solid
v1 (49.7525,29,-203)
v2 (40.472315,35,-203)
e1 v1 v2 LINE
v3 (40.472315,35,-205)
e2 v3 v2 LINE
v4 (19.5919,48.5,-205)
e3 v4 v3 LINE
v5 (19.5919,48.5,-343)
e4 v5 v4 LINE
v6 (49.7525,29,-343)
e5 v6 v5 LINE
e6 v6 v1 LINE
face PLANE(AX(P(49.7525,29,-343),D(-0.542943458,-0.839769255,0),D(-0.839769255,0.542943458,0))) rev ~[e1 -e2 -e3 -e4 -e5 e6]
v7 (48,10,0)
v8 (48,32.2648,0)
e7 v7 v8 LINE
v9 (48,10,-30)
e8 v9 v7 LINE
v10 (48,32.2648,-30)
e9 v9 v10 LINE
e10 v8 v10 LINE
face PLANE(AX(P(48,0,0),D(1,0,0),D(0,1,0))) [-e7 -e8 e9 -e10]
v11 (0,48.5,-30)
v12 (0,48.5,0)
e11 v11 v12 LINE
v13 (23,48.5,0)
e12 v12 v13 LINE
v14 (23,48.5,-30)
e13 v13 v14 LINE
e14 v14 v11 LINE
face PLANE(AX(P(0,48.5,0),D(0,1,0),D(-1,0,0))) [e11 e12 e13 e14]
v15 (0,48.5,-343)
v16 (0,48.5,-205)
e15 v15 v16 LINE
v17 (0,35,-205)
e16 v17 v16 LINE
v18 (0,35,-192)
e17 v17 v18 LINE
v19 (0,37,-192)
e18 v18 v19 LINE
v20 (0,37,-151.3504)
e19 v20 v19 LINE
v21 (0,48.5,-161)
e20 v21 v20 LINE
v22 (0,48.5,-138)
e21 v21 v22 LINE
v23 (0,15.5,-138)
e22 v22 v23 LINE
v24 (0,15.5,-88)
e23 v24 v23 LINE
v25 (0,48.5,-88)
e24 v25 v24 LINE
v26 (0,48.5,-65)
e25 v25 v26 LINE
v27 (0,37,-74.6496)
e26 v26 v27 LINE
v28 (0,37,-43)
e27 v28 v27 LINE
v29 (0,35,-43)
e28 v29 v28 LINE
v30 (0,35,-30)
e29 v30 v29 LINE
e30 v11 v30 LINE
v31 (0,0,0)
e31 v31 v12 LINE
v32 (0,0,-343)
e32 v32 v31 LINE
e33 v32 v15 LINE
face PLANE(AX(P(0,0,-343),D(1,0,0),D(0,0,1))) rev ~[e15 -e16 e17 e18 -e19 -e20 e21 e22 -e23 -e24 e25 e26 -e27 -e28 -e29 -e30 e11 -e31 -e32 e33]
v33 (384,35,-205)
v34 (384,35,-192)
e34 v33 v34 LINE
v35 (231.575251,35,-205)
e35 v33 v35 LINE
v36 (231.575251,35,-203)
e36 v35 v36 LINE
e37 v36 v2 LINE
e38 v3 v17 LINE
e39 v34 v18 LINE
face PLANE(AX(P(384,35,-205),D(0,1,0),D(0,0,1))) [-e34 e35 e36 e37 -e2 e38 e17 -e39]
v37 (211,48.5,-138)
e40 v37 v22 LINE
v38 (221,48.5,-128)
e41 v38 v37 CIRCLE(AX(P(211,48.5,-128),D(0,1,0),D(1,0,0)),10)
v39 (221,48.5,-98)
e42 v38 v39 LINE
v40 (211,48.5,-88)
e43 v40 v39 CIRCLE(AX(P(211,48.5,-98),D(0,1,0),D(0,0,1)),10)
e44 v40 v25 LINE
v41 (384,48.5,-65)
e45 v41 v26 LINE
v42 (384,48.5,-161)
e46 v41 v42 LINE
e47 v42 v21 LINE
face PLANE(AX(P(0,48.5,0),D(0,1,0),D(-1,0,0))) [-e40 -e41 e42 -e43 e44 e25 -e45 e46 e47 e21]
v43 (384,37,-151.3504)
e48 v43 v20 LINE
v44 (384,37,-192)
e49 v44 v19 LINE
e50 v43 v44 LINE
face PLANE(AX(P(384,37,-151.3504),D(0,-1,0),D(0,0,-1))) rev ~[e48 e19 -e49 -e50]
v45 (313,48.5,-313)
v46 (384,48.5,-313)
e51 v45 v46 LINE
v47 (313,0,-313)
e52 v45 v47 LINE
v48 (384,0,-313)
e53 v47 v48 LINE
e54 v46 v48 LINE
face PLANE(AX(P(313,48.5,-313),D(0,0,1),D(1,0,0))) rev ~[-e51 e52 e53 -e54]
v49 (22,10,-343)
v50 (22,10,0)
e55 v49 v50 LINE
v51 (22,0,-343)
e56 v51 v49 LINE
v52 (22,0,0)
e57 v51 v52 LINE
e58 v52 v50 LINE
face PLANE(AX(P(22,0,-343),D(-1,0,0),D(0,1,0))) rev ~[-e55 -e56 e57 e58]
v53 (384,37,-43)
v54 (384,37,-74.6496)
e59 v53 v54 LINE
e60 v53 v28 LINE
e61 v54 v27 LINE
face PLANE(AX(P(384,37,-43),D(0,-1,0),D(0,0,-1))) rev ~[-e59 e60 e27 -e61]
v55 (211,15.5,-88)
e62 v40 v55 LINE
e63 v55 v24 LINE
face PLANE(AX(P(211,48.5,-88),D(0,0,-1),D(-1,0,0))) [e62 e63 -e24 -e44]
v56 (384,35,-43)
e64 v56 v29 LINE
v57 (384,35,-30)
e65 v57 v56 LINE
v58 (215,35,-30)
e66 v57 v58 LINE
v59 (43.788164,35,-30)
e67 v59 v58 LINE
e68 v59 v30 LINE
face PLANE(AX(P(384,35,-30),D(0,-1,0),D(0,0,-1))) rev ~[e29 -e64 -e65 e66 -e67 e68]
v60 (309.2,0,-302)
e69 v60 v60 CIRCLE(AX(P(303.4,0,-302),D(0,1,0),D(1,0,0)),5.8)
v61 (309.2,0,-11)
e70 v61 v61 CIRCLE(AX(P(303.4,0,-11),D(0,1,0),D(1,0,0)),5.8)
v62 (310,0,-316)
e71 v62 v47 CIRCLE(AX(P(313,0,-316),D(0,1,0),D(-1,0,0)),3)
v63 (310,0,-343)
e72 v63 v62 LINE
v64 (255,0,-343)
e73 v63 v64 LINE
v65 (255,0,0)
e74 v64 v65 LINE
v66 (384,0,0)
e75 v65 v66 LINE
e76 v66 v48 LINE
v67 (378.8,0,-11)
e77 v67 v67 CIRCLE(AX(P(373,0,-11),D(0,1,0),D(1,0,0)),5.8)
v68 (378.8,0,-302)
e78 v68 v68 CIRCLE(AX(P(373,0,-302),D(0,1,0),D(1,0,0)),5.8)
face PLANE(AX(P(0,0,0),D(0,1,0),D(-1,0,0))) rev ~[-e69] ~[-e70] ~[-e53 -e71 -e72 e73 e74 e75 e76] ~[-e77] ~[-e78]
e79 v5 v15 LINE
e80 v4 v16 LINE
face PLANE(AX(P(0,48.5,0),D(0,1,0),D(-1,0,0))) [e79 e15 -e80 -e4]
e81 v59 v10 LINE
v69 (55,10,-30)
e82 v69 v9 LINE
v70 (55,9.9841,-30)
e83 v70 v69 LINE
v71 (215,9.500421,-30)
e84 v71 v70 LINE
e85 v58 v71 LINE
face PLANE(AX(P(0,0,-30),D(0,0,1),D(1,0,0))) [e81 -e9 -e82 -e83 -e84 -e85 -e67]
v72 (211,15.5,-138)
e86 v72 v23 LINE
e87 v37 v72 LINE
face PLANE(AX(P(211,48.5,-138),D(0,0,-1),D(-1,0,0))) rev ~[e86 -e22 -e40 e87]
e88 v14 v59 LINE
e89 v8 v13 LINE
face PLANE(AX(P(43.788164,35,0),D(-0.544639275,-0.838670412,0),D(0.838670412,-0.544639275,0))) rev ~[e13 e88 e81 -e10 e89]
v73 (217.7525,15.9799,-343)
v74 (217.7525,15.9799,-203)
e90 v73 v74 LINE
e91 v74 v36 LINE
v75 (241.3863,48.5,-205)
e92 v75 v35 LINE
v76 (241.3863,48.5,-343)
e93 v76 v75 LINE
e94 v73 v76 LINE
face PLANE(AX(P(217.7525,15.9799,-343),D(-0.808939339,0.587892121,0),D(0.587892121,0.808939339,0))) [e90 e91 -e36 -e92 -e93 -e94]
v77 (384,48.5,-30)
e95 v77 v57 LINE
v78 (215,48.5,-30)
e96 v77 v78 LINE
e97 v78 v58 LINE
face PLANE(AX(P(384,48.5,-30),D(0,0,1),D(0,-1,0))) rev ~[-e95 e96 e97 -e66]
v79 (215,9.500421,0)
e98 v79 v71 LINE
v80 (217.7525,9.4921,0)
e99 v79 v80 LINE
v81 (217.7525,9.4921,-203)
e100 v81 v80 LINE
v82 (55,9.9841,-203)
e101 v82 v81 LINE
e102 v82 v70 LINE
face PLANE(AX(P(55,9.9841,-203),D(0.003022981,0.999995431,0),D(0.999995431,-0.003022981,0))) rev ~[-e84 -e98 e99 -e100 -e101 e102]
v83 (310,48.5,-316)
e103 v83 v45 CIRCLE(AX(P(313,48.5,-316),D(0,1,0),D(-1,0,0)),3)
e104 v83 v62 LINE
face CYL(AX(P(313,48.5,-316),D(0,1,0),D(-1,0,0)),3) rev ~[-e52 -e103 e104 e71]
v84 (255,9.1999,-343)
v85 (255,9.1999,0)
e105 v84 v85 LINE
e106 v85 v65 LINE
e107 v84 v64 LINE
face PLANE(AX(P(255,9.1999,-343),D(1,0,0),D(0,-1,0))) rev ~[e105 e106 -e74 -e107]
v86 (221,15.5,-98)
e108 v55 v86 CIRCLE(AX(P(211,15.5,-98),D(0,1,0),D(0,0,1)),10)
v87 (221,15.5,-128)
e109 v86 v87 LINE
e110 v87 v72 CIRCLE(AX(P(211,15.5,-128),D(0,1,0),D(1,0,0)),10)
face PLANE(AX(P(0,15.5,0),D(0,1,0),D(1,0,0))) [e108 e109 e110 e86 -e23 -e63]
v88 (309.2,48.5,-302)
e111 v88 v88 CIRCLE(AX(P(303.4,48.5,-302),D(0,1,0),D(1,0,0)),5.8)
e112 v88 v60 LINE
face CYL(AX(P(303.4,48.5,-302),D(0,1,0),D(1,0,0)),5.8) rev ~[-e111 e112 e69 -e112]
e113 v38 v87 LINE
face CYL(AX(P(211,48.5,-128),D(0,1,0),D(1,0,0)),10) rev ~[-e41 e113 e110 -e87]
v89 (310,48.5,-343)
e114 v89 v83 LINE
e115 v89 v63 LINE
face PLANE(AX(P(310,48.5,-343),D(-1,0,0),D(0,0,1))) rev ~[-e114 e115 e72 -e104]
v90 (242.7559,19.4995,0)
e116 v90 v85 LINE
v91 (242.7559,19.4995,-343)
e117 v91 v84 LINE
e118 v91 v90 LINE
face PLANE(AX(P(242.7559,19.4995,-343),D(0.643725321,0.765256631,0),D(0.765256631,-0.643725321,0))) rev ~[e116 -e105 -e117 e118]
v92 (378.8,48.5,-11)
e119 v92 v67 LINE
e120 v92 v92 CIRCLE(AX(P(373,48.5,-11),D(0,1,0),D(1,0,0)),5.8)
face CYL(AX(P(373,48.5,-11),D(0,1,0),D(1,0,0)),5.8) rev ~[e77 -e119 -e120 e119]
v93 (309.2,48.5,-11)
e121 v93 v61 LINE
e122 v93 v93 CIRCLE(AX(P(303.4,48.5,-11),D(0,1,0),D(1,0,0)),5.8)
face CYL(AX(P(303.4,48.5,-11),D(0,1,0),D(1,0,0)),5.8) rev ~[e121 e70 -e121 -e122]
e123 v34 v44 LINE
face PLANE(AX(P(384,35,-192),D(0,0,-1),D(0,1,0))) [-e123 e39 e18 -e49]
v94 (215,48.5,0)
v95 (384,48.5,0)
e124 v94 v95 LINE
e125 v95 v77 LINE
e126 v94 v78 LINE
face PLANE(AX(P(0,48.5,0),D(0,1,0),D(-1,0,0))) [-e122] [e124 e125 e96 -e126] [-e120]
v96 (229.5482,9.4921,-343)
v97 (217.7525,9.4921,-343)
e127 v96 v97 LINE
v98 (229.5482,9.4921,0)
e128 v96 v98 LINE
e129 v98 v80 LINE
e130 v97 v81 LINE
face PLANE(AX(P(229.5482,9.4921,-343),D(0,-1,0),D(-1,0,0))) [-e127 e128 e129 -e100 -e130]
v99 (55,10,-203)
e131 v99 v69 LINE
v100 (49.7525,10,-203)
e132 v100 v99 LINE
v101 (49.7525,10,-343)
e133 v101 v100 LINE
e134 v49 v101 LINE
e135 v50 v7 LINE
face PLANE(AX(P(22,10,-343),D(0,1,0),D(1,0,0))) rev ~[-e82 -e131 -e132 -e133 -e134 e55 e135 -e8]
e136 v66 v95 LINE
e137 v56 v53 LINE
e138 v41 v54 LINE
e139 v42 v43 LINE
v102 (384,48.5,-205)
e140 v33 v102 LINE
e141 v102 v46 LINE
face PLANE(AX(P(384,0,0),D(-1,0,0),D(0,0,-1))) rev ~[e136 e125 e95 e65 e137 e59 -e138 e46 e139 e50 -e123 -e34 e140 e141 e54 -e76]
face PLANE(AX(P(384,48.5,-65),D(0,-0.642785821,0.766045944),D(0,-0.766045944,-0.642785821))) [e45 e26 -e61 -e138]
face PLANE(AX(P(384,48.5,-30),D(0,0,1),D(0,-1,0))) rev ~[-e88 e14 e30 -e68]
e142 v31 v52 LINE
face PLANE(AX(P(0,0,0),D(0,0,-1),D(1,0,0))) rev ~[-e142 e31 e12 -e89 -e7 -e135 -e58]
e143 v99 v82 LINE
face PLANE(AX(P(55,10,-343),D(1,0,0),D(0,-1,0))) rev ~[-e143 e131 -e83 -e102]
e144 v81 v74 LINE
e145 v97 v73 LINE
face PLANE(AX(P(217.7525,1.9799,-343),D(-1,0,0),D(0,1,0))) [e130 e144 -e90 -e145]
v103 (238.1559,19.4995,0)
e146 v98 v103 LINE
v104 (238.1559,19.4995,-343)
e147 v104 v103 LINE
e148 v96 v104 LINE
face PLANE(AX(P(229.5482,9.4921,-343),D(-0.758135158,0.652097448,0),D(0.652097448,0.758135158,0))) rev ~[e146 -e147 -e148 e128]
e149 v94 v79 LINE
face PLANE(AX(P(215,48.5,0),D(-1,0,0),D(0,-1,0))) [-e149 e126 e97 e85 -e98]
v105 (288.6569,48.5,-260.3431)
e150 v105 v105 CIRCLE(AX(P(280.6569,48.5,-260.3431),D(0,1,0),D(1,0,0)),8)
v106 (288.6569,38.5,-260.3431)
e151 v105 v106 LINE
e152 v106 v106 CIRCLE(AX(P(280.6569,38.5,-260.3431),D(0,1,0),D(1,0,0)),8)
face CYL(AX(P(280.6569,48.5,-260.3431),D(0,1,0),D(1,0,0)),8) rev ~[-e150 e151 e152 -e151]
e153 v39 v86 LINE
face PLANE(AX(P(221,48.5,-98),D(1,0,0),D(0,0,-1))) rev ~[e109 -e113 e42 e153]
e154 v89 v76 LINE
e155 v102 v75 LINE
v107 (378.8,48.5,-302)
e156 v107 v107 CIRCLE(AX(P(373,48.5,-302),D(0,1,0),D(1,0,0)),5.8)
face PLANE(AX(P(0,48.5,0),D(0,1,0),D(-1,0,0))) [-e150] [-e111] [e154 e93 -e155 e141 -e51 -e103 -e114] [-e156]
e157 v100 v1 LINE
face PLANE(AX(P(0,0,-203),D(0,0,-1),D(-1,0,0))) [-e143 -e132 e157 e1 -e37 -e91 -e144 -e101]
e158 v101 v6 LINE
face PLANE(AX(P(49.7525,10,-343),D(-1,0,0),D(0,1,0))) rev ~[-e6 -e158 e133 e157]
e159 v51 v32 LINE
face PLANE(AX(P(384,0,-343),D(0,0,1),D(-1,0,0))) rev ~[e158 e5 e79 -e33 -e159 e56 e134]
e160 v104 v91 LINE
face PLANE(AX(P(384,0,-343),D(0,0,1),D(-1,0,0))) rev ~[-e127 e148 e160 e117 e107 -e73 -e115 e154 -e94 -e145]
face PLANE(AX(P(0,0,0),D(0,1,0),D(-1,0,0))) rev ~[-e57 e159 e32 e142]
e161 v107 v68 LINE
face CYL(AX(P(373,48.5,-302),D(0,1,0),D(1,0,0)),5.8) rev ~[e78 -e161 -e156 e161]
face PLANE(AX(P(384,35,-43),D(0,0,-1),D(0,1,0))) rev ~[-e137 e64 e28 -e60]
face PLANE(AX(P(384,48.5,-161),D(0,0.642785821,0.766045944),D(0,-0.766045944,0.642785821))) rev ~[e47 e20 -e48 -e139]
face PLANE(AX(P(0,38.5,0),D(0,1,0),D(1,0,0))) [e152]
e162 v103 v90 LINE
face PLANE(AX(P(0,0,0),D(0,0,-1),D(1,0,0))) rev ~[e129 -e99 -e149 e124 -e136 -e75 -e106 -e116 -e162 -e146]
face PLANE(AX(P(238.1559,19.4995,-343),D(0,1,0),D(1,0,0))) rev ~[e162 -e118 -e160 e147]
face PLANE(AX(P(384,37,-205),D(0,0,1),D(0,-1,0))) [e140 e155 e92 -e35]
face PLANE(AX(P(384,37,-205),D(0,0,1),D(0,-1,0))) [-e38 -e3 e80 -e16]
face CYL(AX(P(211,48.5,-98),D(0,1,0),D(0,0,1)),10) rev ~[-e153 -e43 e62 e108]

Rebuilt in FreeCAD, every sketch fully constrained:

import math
import FreeCAD as App
import Part
import Sketcher

V = App.Vector
Q = App.Units.Quantity

doc = App.newDocument("Part")
body = doc.addObject("PartDesign::Body", "Body")

sketch1 = body.newObject("Sketcher::SketchObject", "Sketch")
sketch1.AttachmentSupport = (doc.getObject("XZ_Plane"), [""])
sketch1.MapMode = "FlatFace"
sketch1.addGeometry([
    Part.LineSegment(V(0, -343, 0), V(0, 0, 0)),
    Part.LineSegment(V(0, 0, 0), V(384, 0, 0)),
    Part.LineSegment(V(384, 0, 0), V(384, -343, 0)),
    Part.LineSegment(V(384, -343, 0), V(0, -343, 0)),
], False)
sketch1.addConstraint([
    Sketcher.Constraint("Coincident", 0, 2, 1, 1),
    Sketcher.Constraint("Coincident", 1, 2, 2, 1),
    Sketcher.Constraint("Coincident", 2, 2, 3, 1),
    Sketcher.Constraint("Coincident", 3, 2, 0, 1),
    Sketcher.Constraint("Vertical", 0),
    Sketcher.Constraint("Horizontal", 1),
    Sketcher.Constraint("Vertical", 2),
    Sketcher.Constraint("Horizontal", 3),
    Sketcher.Constraint("Coincident", 0, 2, -1, 1),
    Sketcher.Constraint("DistanceX", 1, 1, 1, 2, 384.0),
    Sketcher.Constraint("DistanceY", 0, 1, 0, 2, 343.0),
])
pad1 = body.newObject("PartDesign::Pad", "Pad")
pad1.Profile = sketch1
pad1.Length = 48.5
pad1.Reversed = True

sketch2 = body.newObject("Sketcher::SketchObject", "Sketch001")
sketch2.AttachmentSupport = (doc.getObject("YZ_Plane"), [""])
sketch2.MapMode = "FlatFace"
sketch2.AttachmentOffset = App.Placement(V(0, 0, 384), App.Rotation())
sketch2.addGeometry([
    Part.LineSegment(V(48.5, -65, 0), V(48.5, -30, 0)),
    Part.LineSegment(V(48.5, -30, 0), V(35, -30, 0)),
    Part.LineSegment(V(35, -30, 0), V(35, -43, 0)),
    Part.LineSegment(V(35, -43, 0), V(37, -43, 0)),
    Part.LineSegment(V(37, -43, 0), V(37, -74.6, 0)),
    Part.LineSegment(V(37, -74.6, 0), V(48.5, -65, 0)),
], False)
sketch2.addConstraint([
    Sketcher.Constraint("Coincident", 0, 2, 1, 1),
    Sketcher.Constraint("Coincident", 1, 2, 2, 1),
    Sketcher.Constraint("Coincident", 2, 2, 3, 1),
    Sketcher.Constraint("Coincident", 3, 2, 4, 1),
    Sketcher.Constraint("Coincident", 4, 2, 5, 1),
    Sketcher.Constraint("Coincident", 5, 2, 0, 1),
    Sketcher.Constraint("Vertical", 0),
    Sketcher.Constraint("Horizontal", 1),
    Sketcher.Constraint("Vertical", 2),
    Sketcher.Constraint("Horizontal", 3),
    Sketcher.Constraint("Vertical", 4),
    Sketcher.Constraint("DistanceX", 3, 1, 3, 2, 2.0),
    Sketcher.Constraint("DistanceY", 0, 1, 0, 2, 35.0),
    Sketcher.Constraint("DistanceY", 2, 2, 2, 1, 13.0),
    Sketcher.Constraint("DistanceX", -1, 1, 1, 2, 35.0),
    Sketcher.Constraint("Angle", 5, Q("39.9999 deg")),
    Sketcher.Constraint("DistanceX", 1, 2, 1, 1, 13.5),
    Sketcher.Constraint("DistanceY", 0, 2, -1, 1, 30.0),
])
pocket1 = body.newObject("PartDesign::Pocket", "Pocket")
pocket1.Profile = sketch2
pocket1.Type = "ThroughAll"

sketch3 = body.newObject("Sketcher::SketchObject", "Sketch002")
sketch3.AttachmentSupport = (doc.getObject("YZ_Plane"), [""])
sketch3.MapMode = "FlatFace"
sketch3.AttachmentOffset = App.Placement(V(0, 0, 384), App.Rotation())
sketch3.addGeometry([
    Part.LineSegment(V(48.5, -205, 0), V(48.5, -161, 0)),
    Part.LineSegment(V(48.5, -161, 0), V(37, -151.4, 0)),
    Part.LineSegment(V(37, -151.4, 0), V(37, -192, 0)),
    Part.LineSegment(V(37, -192, 0), V(35, -192, 0)),
    Part.LineSegment(V(35, -192, 0), V(35, -205, 0)),
    Part.LineSegment(V(35, -205, 0), V(48.5, -205, 0)),
], False)
sketch3.addConstraint([
    Sketcher.Constraint("Coincident", 0, 2, 1, 1),
    Sketcher.Constraint("Coincident", 1, 2, 2, 1),
    Sketcher.Constraint("Coincident", 2, 2, 3, 1),
    Sketcher.Constraint("Coincident", 3, 2, 4, 1),
    Sketcher.Constraint("Coincident", 4, 2, 5, 1),
    Sketcher.Constraint("Coincident", 5, 2, 0, 1),
    Sketcher.Constraint("Vertical", 0),
    Sketcher.Constraint("Vertical", 2),
    Sketcher.Constraint("Horizontal", 3),
    Sketcher.Constraint("Vertical", 4),
    Sketcher.Constraint("Horizontal", 5),
    Sketcher.Constraint("DistanceY", 0, 1, 0, 2, 44.0),
    Sketcher.Constraint("DistanceX", 3, 2, 3, 1, 2.0),
    Sketcher.Constraint("DistanceY", 4, 2, 4, 1, 13.0),
    Sketcher.Constraint("Angle", 1, Q("140.0001 deg")),
    Sketcher.Constraint("DistanceX", 5, 1, 5, 2, 13.5),
    Sketcher.Constraint("DistanceY", 0, 2, -1, 1, 161.0),
    Sketcher.Constraint("DistanceX", -1, 1, 1, 2, 37.0),
])
pocket2 = body.newObject("PartDesign::Pocket", "Pocket001")
pocket2.Profile = sketch3
pocket2.Type = "ThroughAll"

sketch4 = body.newObject("Sketcher::SketchObject", "Sketch003")
sketch4.AttachmentSupport = (doc.getObject("XZ_Plane"), [""])
sketch4.MapMode = "FlatFace"
sketch4.AttachmentOffset = App.Placement(V(0, 0, -48.5), App.Rotation())
sketch4.addGeometry([
    Part.LineSegment(V(384, -343, 0), V(310, -343, 0)),
    Part.LineSegment(V(310, -343, 0), V(310, -316, 0)),
    Part.ArcOfCircle(Part.Circle(V(313, -316, 0), V(0, 0, 1), 3), math.radians(90), math.radians(180)),
    Part.LineSegment(V(313, -313, 0), V(384, -313, 0)),
    Part.LineSegment(V(384, -313, 0), V(384, -343, 0)),
], False)
sketch4.addConstraint([
    Sketcher.Constraint("Coincident", 0, 2, 1, 1),
    Sketcher.Constraint("Tangent", 1, 2, 2, 2),
    Sketcher.Constraint("Tangent", 2, 1, 3, 1),
    Sketcher.Constraint("Coincident", 3, 2, 4, 1),
    Sketcher.Constraint("Coincident", 4, 2, 0, 1),
    Sketcher.Constraint("Horizontal", 0),
    Sketcher.Constraint("Vertical", 1),
    Sketcher.Constraint("Horizontal", 3),
    Sketcher.Constraint("Vertical", 4),
    Sketcher.Constraint("Radius", 2, 3.0),
    Sketcher.Constraint("DistanceY", 4, 2, 4, 1, 30.0),
    Sketcher.Constraint("DistanceX", 0, 2, 0, 1, 74.0),
    Sketcher.Constraint("DistanceX", -1, 1, 2, 3, 313.0),
    Sketcher.Constraint("DistanceY", 2, 3, -1, 1, 316.0),
])
pocket3 = body.newObject("PartDesign::Pocket", "Pocket002")
pocket3.Profile = sketch4
pocket3.Type = "ThroughAll"
pocket3.Reversed = True

sketch5 = body.newObject("Sketcher::SketchObject", "Sketch004")
sketch5.AttachmentSupport = (doc.getObject("XZ_Plane"), [""])
sketch5.MapMode = "FlatFace"
sketch5.AttachmentOffset = App.Placement(V(0, 0, -48.5), App.Rotation())
sketch5.addGeometry([
    Part.LineSegment(V(221, -98, 0), V(221, -128, 0)),
    Part.ArcOfCircle(Part.Circle(V(211, -128, 0), V(0, 0, 1), 10), math.radians(-90), math.radians(0)),
    Part.LineSegment(V(211, -138, 0), V(0, -138, 0)),
    Part.LineSegment(V(0, -138, 0), V(0, -88, 0)),
    Part.LineSegment(V(0, -88, 0), V(211, -88, 0)),
    Part.ArcOfCircle(Part.Circle(V(211, -98, 0), V(0, 0, 1), 10), math.radians(0), math.radians(90)),
], False)
sketch5.addConstraint([
    Sketcher.Constraint("Tangent", 0, 2, 1, 2),
    Sketcher.Constraint("Tangent", 1, 1, 2, 1),
    Sketcher.Constraint("Coincident", 2, 2, 3, 1),
    Sketcher.Constraint("Coincident", 3, 2, 4, 1),
    Sketcher.Constraint("Tangent", 4, 2, 5, 2),
    Sketcher.Constraint("Tangent", 5, 1, 0, 1),
    Sketcher.Constraint("Vertical", 0),
    Sketcher.Constraint("Horizontal", 2),
    Sketcher.Constraint("Vertical", 3),
    Sketcher.Constraint("Horizontal", 4),
    Sketcher.Constraint("Equal", 1, 5),
    Sketcher.Constraint("PointOnObject", 2, 2, -2),
    Sketcher.Constraint("Radius", 1, 10.0),
    Sketcher.Constraint("DistanceX", 2, 2, 2, 1, 211.0),
    Sketcher.Constraint("DistanceY", 0, 2, 0, 1, 30.0),
    Sketcher.Constraint("DistanceY", 1, 3, -1, 1, 128.0),
])
pocket4 = body.newObject("PartDesign::Pocket", "Pocket003")
pocket4.Profile = sketch5
pocket4.Length = 33
pocket4.Reversed = True

sketch6 = body.newObject("Sketcher::SketchObject", "Sketch005")
sketch6.AttachmentSupport = (doc.getObject("XZ_Plane"), [""])
sketch6.MapMode = "FlatFace"
sketch6.AttachmentOffset = App.Placement(V(0, 0, -48.5), App.Rotation())
sketch6.addGeometry([
    Part.Circle(V(373, -302, 0), V(0, 0, 1), 6),
    Part.Circle(V(303, -302, 0), V(0, 0, 1), 6),
    Part.Circle(V(373, -11, 0), V(0, 0, 1), 6),
    Part.Circle(V(303, -11, 0), V(0, 0, 1), 6),
], False)
sketch6.addConstraint([
    Sketcher.Constraint("Equal", 0, 1),
    Sketcher.Constraint("Equal", 1, 2),
    Sketcher.Constraint("Equal", 2, 3),
    Sketcher.Constraint("Horizontal", 0, 3, 1, 3),
    Sketcher.Constraint("Horizontal", 2, 3, 3, 3),
    Sketcher.Constraint("Vertical", 0, 3, 2, 3),
    Sketcher.Constraint("Vertical", 1, 3, 3, 3),
    Sketcher.Constraint("Diameter", 0, 11.6),
    Sketcher.Constraint("DistanceX", -1, 1, 0, 3, 373.0),
    Sketcher.Constraint("DistanceY", 0, 3, -1, 1, 302.0),
    Sketcher.Constraint("DistanceY", 2, 3, -1, 1, 11.0),
    Sketcher.Constraint("DistanceX", -1, 1, 1, 3, 303.4),
])
pocket5 = body.newObject("PartDesign::Pocket", "Pocket004")
pocket5.Profile = sketch6
pocket5.Type = "ThroughAll"
pocket5.Reversed = True

sketch7 = body.newObject("Sketcher::SketchObject", "Sketch006")
sketch7.AttachmentSupport = (doc.getObject("XY_Plane"), [""])
sketch7.MapMode = "FlatFace"
sketch7.addGeometry([
    Part.LineSegment(V(48, 32, 0), V(48, 48, 0)),
    Part.LineSegment(V(48, 48, 0), V(23, 48, 0)),
    Part.LineSegment(V(23, 48, 0), V(48, 32, 0)),
], False)
sketch7.addConstraint([
    Sketcher.Constraint("Coincident", 0, 2, 1, 1),
    Sketcher.Constraint("Coincident", 1, 2, 2, 1),
    Sketcher.Constraint("Coincident", 2, 2, 0, 1),
    Sketcher.Constraint("Vertical", 0),
    Sketcher.Constraint("Horizontal", 1),
    Sketcher.Constraint("DistanceX", 1, 2, 1, 1, 25.0),
    Sketcher.Constraint("Angle", 2, Q("-33 deg")),
    Sketcher.Constraint("DistanceX", -1, 1, 0, 2, 48.0),
    Sketcher.Constraint("DistanceY", -1, 1, 0, 2, 48.5),
])
pocket6 = body.newObject("PartDesign::Pocket", "Pocket005")
pocket6.Profile = sketch7
pocket6.Length = 30

sketch8 = body.newObject("Sketcher::SketchObject", "Sketch007")
sketch8.AttachmentSupport = (doc.getObject("XY_Plane"), [""])
sketch8.MapMode = "FlatFace"
sketch8.addGeometry([
    Part.LineSegment(V(215, 48, 0), V(48, 48, 0)),
    Part.LineSegment(V(48, 48, 0), V(48, 0, 0)),
    Part.LineSegment(V(48, 0, 0), V(215, 0, 0)),
    Part.LineSegment(V(215, 0, 0), V(215, 48, 0)),
], False)
sketch8.addConstraint([
    Sketcher.Constraint("Coincident", 0, 2, 1, 1),
    Sketcher.Constraint("Coincident", 1, 2, 2, 1),
    Sketcher.Constraint("Coincident", 2, 2, 3, 1),
    Sketcher.Constraint("Coincident", 3, 2, 0, 1),
    Sketcher.Constraint("Horizontal", 0),
    Sketcher.Constraint("Vertical", 1),
    Sketcher.Constraint("Horizontal", 2),
    Sketcher.Constraint("Vertical", 3),
    Sketcher.Constraint("PointOnObject", 1, 2, -1),
    Sketcher.Constraint("DistanceX", 0, 2, 0, 1, 167.0),
    Sketcher.Constraint("DistanceY", 1, 2, 1, 1, 48.5),
    Sketcher.Constraint("DistanceX", -1, 1, 0, 2, 48.0),
])
pocket7 = body.newObject("PartDesign::Pocket", "Pocket006")
pocket7.Profile = sketch8
pocket7.Length = 30

sketch9 = body.newObject("Sketcher::SketchObject", "Sketch008")
sketch9.AttachmentSupport = (doc.getObject("XZ_Plane"), [""])
sketch9.MapMode = "FlatFace"
sketch9.AttachmentOffset = App.Placement(V(0, 0, -48.5), App.Rotation())
sketch9.addGeometry(Part.Circle(V(281, -260, 0), V(0, 0, 1), 8), False)
sketch9.addConstraint([
    Sketcher.Constraint("Diameter", 0, 16.0),
    Sketcher.Constraint("DistanceX", -1, 1, 0, 3, 280.657),
    Sketcher.Constraint("DistanceY", 0, 3, -1, 1, 260.343),
])
pocket8 = body.newObject("PartDesign::Pocket", "Pocket007")
pocket8.Profile = sketch9
pocket8.Length = 10
pocket8.Reversed = True

sketch10 = body.newObject("Sketcher::SketchObject", "Sketch009")
sketch10.AttachmentSupport = (doc.getObject("XY_Plane"), [""])
sketch10.MapMode = "FlatFace"
sketch10.AttachmentOffset = App.Placement(V(0, 0, -343), App.Rotation())
sketch10.addGeometry([
    Part.LineSegment(V(55, 10, 0), V(55, 0, 0)),
    Part.LineSegment(V(55, 0, 0), V(22, 0, 0)),
    Part.LineSegment(V(22, 0, 0), V(22, 10, 0)),
    Part.LineSegment(V(22, 10, 0), V(55, 10, 0)),
    Part.LineSegment(V(243.7, 11.3, 0), V(255, 0, 0)),
    Part.LineSegment(V(255, 0, 0), V(217.8, 0, 0)),
    Part.LineSegment(V(217.8, 0, 0), V(217.8, 2, 0)),
    Part.LineSegment(V(217.8, 2, 0), V(229.8, 2, 0)),
    Part.LineSegment(V(229.8, 2, 0), V(239.1, 11.3, 0)),
    Part.LineSegment(V(239.1, 11.3, 0), V(243.7, 11.3, 0)),
], False)
sketch10.addConstraint([
    Sketcher.Constraint("Coincident", 0, 2, 1, 1),
    Sketcher.Constraint("Coincident", 1, 2, 2, 1),
    Sketcher.Constraint("Coincident", 2, 2, 3, 1),
    Sketcher.Constraint("Coincident", 3, 2, 0, 1),
    Sketcher.Constraint("Coincident", 4, 2, 5, 1),
    Sketcher.Constraint("Coincident", 5, 2, 6, 1),
    Sketcher.Constraint("Coincident", 6, 2, 7, 1),
    Sketcher.Constraint("Coincident", 7, 2, 8, 1),
    Sketcher.Constraint("Coincident", 8, 2, 9, 1),
    Sketcher.Constraint("Coincident", 9, 2, 4, 1),
    Sketcher.Constraint("Vertical", 0),
    Sketcher.Constraint("Horizontal", 1),
    Sketcher.Constraint("Vertical", 2),
    Sketcher.Constraint("Horizontal", 3),
    Sketcher.Constraint("Horizontal", 5),
    Sketcher.Constraint("Vertical", 6),
    Sketcher.Constraint("Horizontal", 7),
    Sketcher.Constraint("Horizontal", 9),
    Sketcher.Constraint("PointOnObject", 0, 2, -1),
    Sketcher.Constraint("PointOnObject", 4, 2, -1),
    Sketcher.Constraint("Perpendicular", 4, 8),
    Sketcher.Constraint("DistanceX", 7, 1, 7, 2, 12.0),
    Sketcher.Constraint("DistanceY", 0, 2, 0, 1, 10.0),
    Sketcher.Constraint("Angle", 4, Q("-45 deg")),
    Sketcher.Constraint("Distance", 4, 16.0),
    Sketcher.Constraint("DistanceX", 9, 1, 9, 2, 4.6),
    Sketcher.Constraint("DistanceX", -1, 1, 1, 2, 22.0),
    Sketcher.Constraint("Distance", 8, 13.2),
    Sketcher.Constraint("DistanceX", 1, 2, 1, 1, 33.0),
    Sketcher.Constraint("DistanceX", -1, 1, 4, 2, 255.0),
])
pocket9 = body.newObject("PartDesign::Pocket", "Pocket008")
pocket9.Profile = sketch10
pocket9.Type = "ThroughAll"
pocket9.Reversed = True

sketch11 = body.newObject("Sketcher::SketchObject", "Sketch010")
sketch11.AttachmentSupport = (doc.getObject("XY_Plane"), [""])
sketch11.MapMode = "FlatFace"
sketch11.AttachmentOffset = App.Placement(V(0, 0, -343), App.Rotation())
sketch11.addGeometry([
    Part.LineSegment(V(218, 16, 0), V(218, 0, 0)),
    Part.LineSegment(V(218, 0, 0), V(55, 0, 0)),
    Part.LineSegment(V(55, 0, 0), V(55, 10, 0)),
    Part.LineSegment(V(55, 10, 0), V(50, 10, 0)),
    Part.LineSegment(V(50, 10, 0), V(50, 29, 0)),
    Part.LineSegment(V(50, 29, 0), V(20, 48, 0)),
    Part.LineSegment(V(20, 48, 0), V(241, 48, 0)),
    Part.LineSegment(V(241, 48, 0), V(218, 16, 0)),
], False)
sketch11.addConstraint([
    Sketcher.Constraint("Coincident", 0, 2, 1, 1),
    Sketcher.Constraint("Coincident", 1, 2, 2, 1),
    Sketcher.Constraint("Coincident", 2, 2, 3, 1),
    Sketcher.Constraint("Coincident", 3, 2, 4, 1),
    Sketcher.Constraint("Coincident", 4, 2, 5, 1),
    Sketcher.Constraint("Coincident", 5, 2, 6, 1),
    Sketcher.Constraint("Coincident", 6, 2, 7, 1),
    Sketcher.Constraint("Coincident", 7, 2, 0, 1),
    Sketcher.Constraint("Vertical", 0),
    Sketcher.Constraint("Horizontal", 1),
    Sketcher.Constraint("Vertical", 2),
    Sketcher.Constraint("Horizontal", 3),
    Sketcher.Constraint("Vertical", 4),
    Sketcher.Constraint("Horizontal", 6),
    Sketcher.Constraint("PointOnObject", 0, 2, -1),
    Sketcher.Constraint("DistanceY", 4, 1, 4, 2, 19.0),
    Sketcher.Constraint("DistanceY", 2, 1, 2, 2, 10.0),
    Sketcher.Constraint("DistanceX", -1, 1, 1, 2, 55.0),
    Sketcher.Constraint("DistanceX", 3, 2, 0, 2, 168.0),
    Sketcher.Constraint("DistanceY", 0, 2, 0, 1, 15.98),
    Sketcher.Constraint("DistanceY", -1, 1, 5, 2, 48.5),
    Sketcher.Constraint("Distance", 7, 40.201),
    Sketcher.Constraint("DistanceX", 1, 2, 1, 1, 162.7525),
    Sketcher.Constraint("DistanceX", 6, 1, 6, 2, 221.7944),
])
pocket10 = body.newObject("PartDesign::Pocket", "Pocket009")
pocket10.Profile = sketch11
pocket10.Length = 140
pocket10.Reversed = True

sketch12 = body.newObject("Sketcher::SketchObject", "Sketch011")
sketch12.AttachmentSupport = (doc.getObject("XY_Plane"), [""])
sketch12.MapMode = "FlatFace"
sketch12.AttachmentOffset = App.Placement(V(0, 0, -203), App.Rotation())
sketch12.addGeometry([
    Part.LineSegment(V(55, 0, 0), V(55, 10, 0)),
    Part.LineSegment(V(55, 10, 0), V(218, 9, 0)),
    Part.LineSegment(V(218, 9, 0), V(218, 0, 0)),
    Part.LineSegment(V(218, 0, 0), V(55, 0, 0)),
], False)
sketch12.addConstraint([
    Sketcher.Constraint("Coincident", 0, 2, 1, 1),
    Sketcher.Constraint("Coincident", 1, 2, 2, 1),
    Sketcher.Constraint("Coincident", 2, 2, 3, 1),
    Sketcher.Constraint("Coincident", 3, 2, 0, 1),
    Sketcher.Constraint("Vertical", 0),
    Sketcher.Constraint("Vertical", 2),
    Sketcher.Constraint("Horizontal", 3),
    Sketcher.Constraint("PointOnObject", 2, 2, -1),
    Sketcher.Constraint("DistanceX", -1, 1, 0, 2, 55.0),
    Sketcher.Constraint("DistanceY", 0, 1, 0, 2, 9.984),
    Sketcher.Constraint("DistanceY", 2, 2, 2, 1, 9.492),
    Sketcher.Constraint("DistanceX", 3, 2, 3, 1, 162.7525),
])
pocket11 = body.newObject("PartDesign::Pocket", "Pocket010")
pocket11.Profile = sketch12
pocket11.Type = "ThroughAll"
pocket11.Reversed = True

sketch13 = body.newObject("Sketcher::SketchObject", "Sketch012")
sketch13.AttachmentSupport = (doc.getObject("XY_Plane"), [""])
sketch13.MapMode = "FlatFace"
sketch13.AttachmentOffset = App.Placement(V(0, 0, -343), App.Rotation())
sketch13.addGeometry([
    Part.LineSegment(V(217.8, 9.5, 0), V(229.5, 9.5, 0)),
    Part.LineSegment(V(229.5, 9.5, 0), V(238.2, 19.5, 0)),
    Part.LineSegment(V(238.2, 19.5, 0), V(242.8, 19.5, 0)),
    Part.LineSegment(V(242.8, 19.5, 0), V(255, 9.2, 0)),
    Part.LineSegment(V(255, 9.2, 0), V(255, 0, 0)),
    Part.LineSegment(V(255, 0, 0), V(243.7, 11.3, 0)),
    Part.LineSegment(V(243.7, 11.3, 0), V(239.1, 11.3, 0)),
    Part.LineSegment(V(239.1, 11.3, 0), V(229.8, 2, 0)),
    Part.LineSegment(V(229.8, 2, 0), V(217.8, 2, 0)),
    Part.LineSegment(V(217.8, 2, 0), V(217.8, 9.5, 0)),
], False)
sketch13.addConstraint([
    Sketcher.Constraint("Coincident", 0, 2, 1, 1),
    Sketcher.Constraint("Coincident", 1, 2, 2, 1),
    Sketcher.Constraint("Coincident", 2, 2, 3, 1),
    Sketcher.Constraint("Coincident", 3, 2, 4, 1),
    Sketcher.Constraint("Coincident", 4, 2, 5, 1),
    Sketcher.Constraint("Coincident", 5, 2, 6, 1),
    Sketcher.Constraint("Coincident", 6, 2, 7, 1),
    Sketcher.Constraint("Coincident", 7, 2, 8, 1),
    Sketcher.Constraint("Coincident", 8, 2, 9, 1),
    Sketcher.Constraint("Coincident", 9, 2, 0, 1),
    Sketcher.Constraint("Horizontal", 0),
    Sketcher.Constraint("Horizontal", 2),
    Sketcher.Constraint("Vertical", 4),
    Sketcher.Constraint("Horizontal", 6),
    Sketcher.Constraint("Horizontal", 8),
    Sketcher.Constraint("Vertical", 9),
    Sketcher.Constraint("PointOnObject", 4, 2, -1),
    Sketcher.Constraint("Perpendicular", 5, 7),
    Sketcher.Constraint("Equal", 2, 6),
    Sketcher.Constraint("Equal", 3, 5),
    Sketcher.Constraint("Equal", 1, 7),
    Sketcher.Constraint("Distance", 3, 16.0),
    Sketcher.Constraint("DistanceX", 2, 1, 2, 2, 4.6),
    Sketcher.Constraint("Distance", 1, 13.2),
    Sketcher.Constraint("DistanceX", 8, 2, 8, 1, 12.0),
    Sketcher.Constraint("Angle", 5, Q("135 deg")),
    Sketcher.Constraint("DistanceY", 4, 2, 4, 1, 9.2),
    Sketcher.Constraint("DistanceX", -1, 1, 3, 2, 255.0),
    Sketcher.Constraint("Angle", 1, Q("49.3 deg")),
    Sketcher.Constraint("Angle", 3, Q("-40.0702 deg")),
])
pocket12 = body.newObject("PartDesign::Pocket", "Pocket011")
pocket12.Profile = sketch13
pocket12.Type = "ThroughAll"
pocket12.Reversed = True

doc.recompute()
